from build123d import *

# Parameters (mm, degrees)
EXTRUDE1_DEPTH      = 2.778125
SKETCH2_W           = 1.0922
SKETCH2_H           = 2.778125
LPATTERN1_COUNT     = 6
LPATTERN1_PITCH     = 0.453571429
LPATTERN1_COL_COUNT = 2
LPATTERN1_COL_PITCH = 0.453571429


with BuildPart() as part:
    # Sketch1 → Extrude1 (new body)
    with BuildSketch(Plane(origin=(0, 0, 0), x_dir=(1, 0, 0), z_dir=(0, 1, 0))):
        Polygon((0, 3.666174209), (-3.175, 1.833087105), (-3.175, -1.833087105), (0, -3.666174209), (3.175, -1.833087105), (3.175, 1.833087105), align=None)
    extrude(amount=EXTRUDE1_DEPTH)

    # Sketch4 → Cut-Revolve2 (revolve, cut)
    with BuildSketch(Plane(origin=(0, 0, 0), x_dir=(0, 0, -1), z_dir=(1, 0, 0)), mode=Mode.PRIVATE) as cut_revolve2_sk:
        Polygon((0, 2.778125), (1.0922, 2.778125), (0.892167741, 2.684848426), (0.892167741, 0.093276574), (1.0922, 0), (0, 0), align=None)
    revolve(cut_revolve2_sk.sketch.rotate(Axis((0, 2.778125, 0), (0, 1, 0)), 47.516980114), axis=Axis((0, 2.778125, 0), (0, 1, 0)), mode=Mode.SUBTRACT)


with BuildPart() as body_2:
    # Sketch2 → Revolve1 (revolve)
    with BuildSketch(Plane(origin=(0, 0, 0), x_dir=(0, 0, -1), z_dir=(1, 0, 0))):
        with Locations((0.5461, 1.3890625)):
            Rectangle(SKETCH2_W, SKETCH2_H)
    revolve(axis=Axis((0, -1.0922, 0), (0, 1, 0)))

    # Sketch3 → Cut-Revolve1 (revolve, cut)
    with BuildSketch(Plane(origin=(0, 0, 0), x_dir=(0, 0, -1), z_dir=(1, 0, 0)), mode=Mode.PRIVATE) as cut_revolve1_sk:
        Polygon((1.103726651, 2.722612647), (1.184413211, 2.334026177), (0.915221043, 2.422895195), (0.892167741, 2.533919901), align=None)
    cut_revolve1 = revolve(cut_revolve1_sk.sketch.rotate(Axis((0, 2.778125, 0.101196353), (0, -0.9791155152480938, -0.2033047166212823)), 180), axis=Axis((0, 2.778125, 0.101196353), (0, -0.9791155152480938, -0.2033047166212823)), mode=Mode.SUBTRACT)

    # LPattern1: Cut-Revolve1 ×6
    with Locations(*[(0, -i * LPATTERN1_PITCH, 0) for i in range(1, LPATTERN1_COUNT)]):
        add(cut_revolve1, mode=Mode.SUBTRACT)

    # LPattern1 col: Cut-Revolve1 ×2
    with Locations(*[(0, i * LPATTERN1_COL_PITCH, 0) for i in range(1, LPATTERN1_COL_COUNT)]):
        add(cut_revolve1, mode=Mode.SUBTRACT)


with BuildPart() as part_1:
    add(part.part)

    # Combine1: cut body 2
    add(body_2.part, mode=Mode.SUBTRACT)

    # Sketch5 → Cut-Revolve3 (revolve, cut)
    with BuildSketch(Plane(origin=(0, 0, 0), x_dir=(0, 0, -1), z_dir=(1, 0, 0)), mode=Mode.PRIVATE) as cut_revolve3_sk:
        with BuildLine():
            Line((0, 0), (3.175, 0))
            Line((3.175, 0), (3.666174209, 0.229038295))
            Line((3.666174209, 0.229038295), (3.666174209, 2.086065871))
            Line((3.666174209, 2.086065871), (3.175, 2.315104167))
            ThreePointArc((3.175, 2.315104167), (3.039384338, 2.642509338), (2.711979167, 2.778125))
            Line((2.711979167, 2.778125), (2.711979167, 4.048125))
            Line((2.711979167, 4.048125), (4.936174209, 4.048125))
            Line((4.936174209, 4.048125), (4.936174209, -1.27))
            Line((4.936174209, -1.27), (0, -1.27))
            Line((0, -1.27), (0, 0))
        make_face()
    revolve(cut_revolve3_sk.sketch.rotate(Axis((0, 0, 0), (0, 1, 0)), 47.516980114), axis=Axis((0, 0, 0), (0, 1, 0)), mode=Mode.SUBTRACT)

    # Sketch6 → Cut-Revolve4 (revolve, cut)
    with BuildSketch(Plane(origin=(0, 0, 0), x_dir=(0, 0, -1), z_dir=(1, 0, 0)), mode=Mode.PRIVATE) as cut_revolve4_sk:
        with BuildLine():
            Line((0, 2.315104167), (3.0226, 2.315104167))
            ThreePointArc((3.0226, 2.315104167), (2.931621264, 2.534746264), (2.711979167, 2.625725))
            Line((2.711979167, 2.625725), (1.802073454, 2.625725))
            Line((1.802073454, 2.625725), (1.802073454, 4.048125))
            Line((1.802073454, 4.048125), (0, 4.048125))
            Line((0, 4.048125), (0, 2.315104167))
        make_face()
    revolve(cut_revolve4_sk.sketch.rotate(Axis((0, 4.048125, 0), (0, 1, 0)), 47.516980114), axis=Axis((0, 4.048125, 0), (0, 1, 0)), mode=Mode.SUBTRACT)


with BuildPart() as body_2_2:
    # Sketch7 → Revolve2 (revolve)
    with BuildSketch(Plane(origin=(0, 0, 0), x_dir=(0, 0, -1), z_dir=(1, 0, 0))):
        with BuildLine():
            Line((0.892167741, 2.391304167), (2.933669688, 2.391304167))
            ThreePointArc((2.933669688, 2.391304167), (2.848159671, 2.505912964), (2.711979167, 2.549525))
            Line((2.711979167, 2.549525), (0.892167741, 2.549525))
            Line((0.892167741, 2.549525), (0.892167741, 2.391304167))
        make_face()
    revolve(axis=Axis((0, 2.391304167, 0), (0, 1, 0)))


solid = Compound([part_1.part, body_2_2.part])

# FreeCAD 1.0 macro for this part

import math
import FreeCAD as App
import Part
import Sketcher
from FreeCAD import Vector
Q = App.Units.Quantity

doc = App.newDocument("Part")
body = doc.addObject("PartDesign::Body", "Body")

sketch1 = body.newObject("Sketcher::SketchObject", "Sketch")
sketch1.AttachmentSupport = (doc.getObject("XZ_Plane"), [""])
sketch1.MapMode = "FlatFace"
sketch1.addGeometry([
    Part.LineSegment(Vector(0, -3.7, 0), Vector(-3.2, -1.8, 0)),
    Part.LineSegment(Vector(-3.2, -1.8, 0), Vector(-3.2, 1.8, 0)),
    Part.LineSegment(Vector(-3.2, 1.8, 0), Vector(0, 3.7, 0)),
    Part.LineSegment(Vector(0, 3.7, 0), Vector(3.2, 1.8, 0)),
    Part.LineSegment(Vector(3.2, 1.8, 0), Vector(3.2, -1.8, 0)),
    Part.LineSegment(Vector(3.2, -1.8, 0), Vector(0, -3.7, 0)),
], False)
sketch1.addConstraint([
    Sketcher.Constraint("Coincident", 0, 2, 1, 1),
    Sketcher.Constraint("Coincident", 1, 2, 2, 1),
    Sketcher.Constraint("Coincident", 2, 2, 3, 1),
    Sketcher.Constraint("Coincident", 3, 2, 4, 1),
    Sketcher.Constraint("Coincident", 4, 2, 5, 1),
    Sketcher.Constraint("Coincident", 5, 2, 0, 1),
    Sketcher.Constraint("Vertical", 1),
    Sketcher.Constraint("Vertical", 4),
    Sketcher.Constraint("Symmetric", 0, 2, 3, 2, -1, 1),
    Sketcher.Constraint("Symmetric", 2, 2, 5, 2, -1, 1),
    Sketcher.Constraint("PointOnObject", 2, 2, -2),
    Sketcher.Constraint("Parallel", 2, 5),
    Sketcher.Constraint("Horizontal", 1, 2, 3, 2),
    Sketcher.Constraint("Angle", 0, Q("150 deg")),
    Sketcher.Constraint("DistanceX", 1, 2, 3, 2, Q("0.25 in")),
    Sketcher.Constraint("DistanceY", 1, 1, 1, 2, 3.666174),
])
pad1 = body.newObject("PartDesign::Pad", "Pad")
pad1.Profile = sketch1
pad1.Length = Q("0.109375 in")
pad1.Reversed = True

sketch2 = body.newObject("Sketcher::SketchObject", "Sketch001")
sketch2.AttachmentSupport = (doc.getObject("YZ_Plane"), [""])
sketch2.MapMode = "FlatFace"
sketch2.addGeometry([
    Part.LineSegment(Vector(2.78, -1.09, 0), Vector(2.78, 0, 0)),
    Part.LineSegment(Vector(2.78, 0, 0), Vector(0, 0, 0)),
    Part.LineSegment(Vector(0, 0, 0), Vector(0, -1.09, 0)),
    Part.LineSegment(Vector(0, -1.09, 0), Vector(0.09, -0.89, 0)),
    Part.LineSegment(Vector(0.09, -0.89, 0), Vector(2.68, -0.89, 0)),
    Part.LineSegment(Vector(2.68, -0.89, 0), Vector(2.78, -1.09, 0)),
], False)
sketch2.addConstraint([
    Sketcher.Constraint("Coincident", 0, 2, 1, 1),
    Sketcher.Constraint("Coincident", 1, 2, 2, 1),
    Sketcher.Constraint("Coincident", 2, 2, 3, 1),
    Sketcher.Constraint("Coincident", 3, 2, 4, 1),
    Sketcher.Constraint("Coincident", 4, 2, 5, 1),
    Sketcher.Constraint("Coincident", 5, 2, 0, 1),
    Sketcher.Constraint("Vertical", 0),
    Sketcher.Constraint("Horizontal", 1),
    Sketcher.Constraint("Vertical", 2),
    Sketcher.Constraint("Horizontal", 4),
    Sketcher.Constraint("Coincident", 1, 2, -1, 1),
    Sketcher.Constraint("Horizontal", 2, 2, 5, 2),
    Sketcher.Constraint("Equal", 3, 5),
    Sketcher.Constraint("Angle", 3, Q("65 deg")),
    Sketcher.Constraint("DistanceX", 1, 2, 1, 1, Q("0.109375 in")),
    Sketcher.Constraint("DistanceY", 0, 1, 0, 2, Q("0.043 in")),
    Sketcher.Constraint("DistanceX", 4, 1, 4, 2, 2.591572),
])
groove = body.newObject("PartDesign::Groove", "Groove")
groove.Profile = sketch2
groove.ReferenceAxis = (sketch2, ["H_Axis"])
groove.Angle = 360
body2 = doc.addObject("PartDesign::Body", "Body001")

sketch3 = body2.newObject("Sketcher::SketchObject", "Sketch002")
sketch3.AttachmentSupport = (doc.getObject("YZ_Plane001"), [""])
sketch3.MapMode = "FlatFace"
sketch3.addGeometry([
    Part.LineSegment(Vector(2.8, 0, 0), Vector(0, 0, 0)),
    Part.LineSegment(Vector(0, 0, 0), Vector(0, -1.1, 0)),
    Part.LineSegment(Vector(0, -1.1, 0), Vector(2.8, -1.1, 0)),
    Part.LineSegment(Vector(2.8, -1.1, 0), Vector(2.8, 0, 0)),
], False)
sketch3.addConstraint([
    Sketcher.Constraint("Coincident", 0, 2, 1, 1),
    Sketcher.Constraint("Coincident", 1, 2, 2, 1),
    Sketcher.Constraint("Coincident", 2, 2, 3, 1),
    Sketcher.Constraint("Coincident", 3, 2, 0, 1),
    Sketcher.Constraint("Horizontal", 0),
    Sketcher.Constraint("Vertical", 1),
    Sketcher.Constraint("Horizontal", 2),
    Sketcher.Constraint("Vertical", 3),
    Sketcher.Constraint("Coincident", 0, 2, -1, 1),
    Sketcher.Constraint("DistanceX", 0, 2, 0, 1, Q("0.109375 in")),
    Sketcher.Constraint("DistanceY", 1, 2, 1, 1, Q("0.043 in")),
])
revolution = body2.newObject("PartDesign::Revolution", "Revolution")
revolution.Profile = sketch3
revolution.ReferenceAxis = (sketch3, ["H_Axis"])
revolution.Angle = 360

sketch4 = body2.newObject("Sketcher::SketchObject", "Sketch003")
sketch4.AttachmentSupport = (doc.getObject("YZ_Plane001"), [""])
sketch4.MapMode = "FlatFace"
sketch4.addGeometry([
    Part.LineSegment(Vector(2.33, -1.18, 0), Vector(2.72, -1.1, 0)),
    Part.LineSegment(Vector(2.72, -1.1, 0), Vector(2.53, -0.89, 0)),
    Part.LineSegment(Vector(2.53, -0.89, 0), Vector(2.42, -0.92, 0)),
    Part.LineSegment(Vector(2.42, -0.92, 0), Vector(2.33, -1.18, 0)),
], False)
sketch4.addGeometry(Part.LineSegment(Vector(2.49, 0.04, 0), Vector(2.1, -0.04, 0)), True)
sketch4.addConstraint([
    Sketcher.Constraint("Coincident", 0, 2, 1, 1),
    Sketcher.Constraint("Coincident", 1, 2, 2, 1),
    Sketcher.Constraint("Coincident", 2, 2, 3, 1),
    Sketcher.Constraint("Coincident", 3, 2, 0, 1),
    Sketcher.Constraint("Parallel", 0, 2),
    Sketcher.Constraint("Parallel", 2, 4),
    Sketcher.Constraint("Equal", 1, 3),
    Sketcher.Constraint("Equal", 0, 4),
    Sketcher.Constraint("Distance", 0, Q("0.015625 in")),
    Sketcher.Constraint("DistanceX", 2, 2, 0, 2, Q("0.0117999 in")),
    Sketcher.Constraint("DistanceX", -1, 1, 1, 2, 2.53392),
    Sketcher.Constraint("DistanceY", 2, 2, -1, 1, 0.915221),
    Sketcher.Constraint("DistanceX", -1, 1, 4, 2, 2.09647),
    Sketcher.Constraint("DistanceY", 0, 2, 1, 2, 0.211559),
    Sketcher.Constraint("DistanceX", 3, 2, 2, 2, 0.088869),
    Sketcher.Constraint("DistanceY", 1, 2, 4, 1, 0.932511),
])
groove2 = body2.newObject("PartDesign::Groove", "Groove001")
groove2.Profile = sketch4
groove2.ReferenceAxis = (sketch4, ["Axis0"])
groove2.Angle = 360
doc.recompute()

linearpattern = body2.newObject("PartDesign::LinearPattern", "LinearPattern")
linearpattern.Originals = [groove2]
linearpattern.Direction = (doc.getObject("Y_Axis001"), [""])
linearpattern.Mode = "offset"
linearpattern.Offset = 0.453571
linearpattern.Occurrences = 6
linearpattern.Reversed = True
body2.Tip = linearpattern
doc.recompute()

linearpattern2 = body2.newObject("PartDesign::LinearPattern", "LinearPattern001")
linearpattern2.Originals = [groove2]
linearpattern2.Direction = (doc.getObject("Y_Axis001"), [""])
linearpattern2.Mode = "offset"
linearpattern2.Offset = 0.453571
linearpattern2.Occurrences = 2
body2.Tip = linearpattern2
doc.recompute()

boolean = body.newObject("PartDesign::Boolean", "Boolean")
boolean.Type = "Cut"
boolean.addObjects([body2])

sketch5 = body.newObject("Sketcher::SketchObject", "Sketch004")
sketch5.AttachmentSupport = (doc.getObject("YZ_Plane"), [""])
sketch5.MapMode = "FlatFace"
sketch5.addGeometry([
    Part.LineSegment(Vector(0, -3.17, 0), Vector(0, 0, 0)),
    Part.LineSegment(Vector(0, 0, 0), Vector(-1.27, 0, 0)),
    Part.LineSegment(Vector(-1.27, 0, 0), Vector(-1.27, -4.94, 0)),
    Part.LineSegment(Vector(-1.27, -4.94, 0), Vector(4.05, -4.94, 0)),
    Part.LineSegment(Vector(4.05, -4.94, 0), Vector(4.05, -2.71, 0)),
    Part.LineSegment(Vector(4.05, -2.71, 0), Vector(2.78, -2.71, 0)),
    Part.ArcOfCircle(Part.Circle(Vector(2.32, -2.71, 0), Vector(0, 0, 1), 0.46), math.radians(-90), math.radians(0)),
    Part.LineSegment(Vector(2.32, -3.17, 0), Vector(2.09, -3.67, 0)),
    Part.LineSegment(Vector(2.09, -3.67, 0), Vector(0.23, -3.67, 0)),
    Part.LineSegment(Vector(0.23, -3.67, 0), Vector(0, -3.17, 0)),
], False)
sketch5.addConstraint([
    Sketcher.Constraint("Coincident", 0, 2, 1, 1),
    Sketcher.Constraint("Coincident", 1, 2, 2, 1),
    Sketcher.Constraint("Coincident", 2, 2, 3, 1),
    Sketcher.Constraint("Coincident", 3, 2, 4, 1),
    Sketcher.Constraint("Coincident", 4, 2, 5, 1),
    Sketcher.Constraint("Coincident", 5, 2, 6, 2),
    Sketcher.Constraint("Coincident", 6, 1, 7, 1),
    Sketcher.Constraint("Coincident", 7, 2, 8, 1),
    Sketcher.Constraint("Coincident", 8, 2, 9, 1),
    Sketcher.Constraint("Coincident", 9, 2, 0, 1),
    Sketcher.Constraint("Vertical", 0),
    Sketcher.Constraint("Horizontal", 1),
    Sketcher.Constraint("Vertical", 2),
    Sketcher.Constraint("Horizontal", 3),
    Sketcher.Constraint("Vertical", 4),
    Sketcher.Constraint("Horizontal", 5),
    Sketcher.Constraint("Horizontal", 8),
    Sketcher.Constraint("Coincident", 0, 2, -1, 1),
    Sketcher.Constraint("Horizontal", 6, 3, 4, 2),
    Sketcher.Constraint("Horizontal", 6, 1, 9, 2),
    Sketcher.Constraint("Equal", 1, 5),
    Sketcher.Constraint("Equal", 7, 9),
    Sketcher.Constraint("Angle", 7, Q("-115 deg")),
    Sketcher.Constraint("DistanceX", 1, 2, 1, 1, Q("0.05 in")),
    Sketcher.Constraint("DistanceY", 0, 1, 0, 2, Q("0.125 in")),
    Sketcher.Constraint("DistanceY", 3, 2, 7, 2, Q("0.05 in")),
    Sketcher.Constraint("DistanceX", -1, 1, 5, 2, Q("0.109375 in")),
    Sketcher.Constraint("Radius", 6, 0.463021),
    Sketcher.Constraint("Distance", 7, 0.541951),
    Sketcher.Constraint("DistanceX", 8, 2, 8, 1, 1.857028),
])
groove3 = body.newObject("PartDesign::Groove", "Groove002")
groove3.Profile = sketch5
groove3.ReferenceAxis = (sketch5, ["H_Axis"])
groove3.Angle = 360

sketch6 = body.newObject("Sketcher::SketchObject", "Sketch005")
sketch6.AttachmentSupport = (doc.getObject("YZ_Plane"), [""])
sketch6.MapMode = "FlatFace"
sketch6.addGeometry([
    Part.LineSegment(Vector(2.32, 0, 0), Vector(2.32, -3.02, 0)),
    Part.ArcOfCircle(Part.Circle(Vector(2.32, -2.71, 0), Vector(0, 0, 1), 0.31), math.radians(-90), math.radians(0)),
    Part.LineSegment(Vector(2.63, -2.71, 0), Vector(2.63, -1.8, 0)),
    Part.LineSegment(Vector(2.63, -1.8, 0), Vector(4.05, -1.8, 0)),
    Part.LineSegment(Vector(4.05, -1.8, 0), Vector(4.05, 0, 0)),
    Part.LineSegment(Vector(4.05, 0, 0), Vector(2.32, 0, 0)),
], False)
sketch6.addConstraint([
    Sketcher.Constraint("Coincident", 0, 2, 1, 1),
    Sketcher.Constraint("Tangent", 1, 2, 2, 1),
    Sketcher.Constraint("Coincident", 2, 2, 3, 1),
    Sketcher.Constraint("Coincident", 3, 2, 4, 1),
    Sketcher.Constraint("Coincident", 4, 2, 5, 1),
    Sketcher.Constraint("Coincident", 5, 2, 0, 1),
    Sketcher.Constraint("Vertical", 0),
    Sketcher.Constraint("Vertical", 2),
    Sketcher.Constraint("Horizontal", 3),
    Sketcher.Constraint("Vertical", 4),
    Sketcher.Constraint("Horizontal", 5),
    Sketcher.Constraint("PointOnObject", 4, 2, -1),
    Sketcher.Constraint("Vertical", 1, 3, 0, 2),
    Sketcher.Constraint("DistanceX", 3, 1, 3, 2, Q("0.056 in")),
    Sketcher.Constraint("DistanceY", 0, 2, 0, 1, Q("0.119 in")),
    Sketcher.Constraint("Radius", 1, 0.310621),
    Sketcher.Constraint("DistanceY", 2, 1, 2, 2, 0.909906),
    Sketcher.Constraint("DistanceX", -1, 1, 1, 3, 2.315104),
])
groove4 = body.newObject("PartDesign::Groove", "Groove003")
groove4.Profile = sketch6
groove4.ReferenceAxis = (sketch6, ["H_Axis"])
groove4.Angle = 360
body3 = doc.addObject("PartDesign::Body", "Body002")

sketch7 = body3.newObject("Sketcher::SketchObject", "Sketch006")
sketch7.AttachmentSupport = (doc.getObject("YZ_Plane002"), [""])
sketch7.MapMode = "FlatFace"
sketch7.addGeometry([
    Part.LineSegment(Vector(2.39, -0.89, 0), Vector(2.39, -2.93, 0)),
    Part.ArcOfCircle(Part.Circle(Vector(2.32, -2.71, 0), Vector(0, 0, 1), 0.23), math.radians(-71), math.radians(0)),
    Part.LineSegment(Vector(2.55, -2.71, 0), Vector(2.55, -0.89, 0)),
    Part.LineSegment(Vector(2.55, -0.89, 0), Vector(2.39, -0.89, 0)),
], False)
sketch7.addConstraint([
    Sketcher.Constraint("Coincident", 0, 2, 1, 1),
    Sketcher.Constraint("Tangent", 1, 2, 2, 1),
    Sketcher.Constraint("Coincident", 2, 2, 3, 1),
    Sketcher.Constraint("Coincident", 3, 2, 0, 1),
    Sketcher.Constraint("Vertical", 0),
    Sketcher.Constraint("Vertical", 2),
    Sketcher.Constraint("Horizontal", 3),
    Sketcher.Constraint("Radius", 1, 0.234421),
    Sketcher.Constraint("DistanceX", 1, 3, 0, 2, Q("0.003 in")),
    Sketcher.Constraint("DistanceY", 0, 2, 0, 1, 2.041502),
    Sketcher.Constraint("DistanceY", 1, 3, -1, 1, 2.711979),
    Sketcher.Constraint("DistanceX", -1, 1, 1, 3, 2.315104),
])
revolution2 = body3.newObject("PartDesign::Revolution", "Revolution001")
revolution2.Profile = sketch7
revolution2.ReferenceAxis = (sketch7, ["H_Axis"])
revolution2.Angle = 360

doc.recompute()
